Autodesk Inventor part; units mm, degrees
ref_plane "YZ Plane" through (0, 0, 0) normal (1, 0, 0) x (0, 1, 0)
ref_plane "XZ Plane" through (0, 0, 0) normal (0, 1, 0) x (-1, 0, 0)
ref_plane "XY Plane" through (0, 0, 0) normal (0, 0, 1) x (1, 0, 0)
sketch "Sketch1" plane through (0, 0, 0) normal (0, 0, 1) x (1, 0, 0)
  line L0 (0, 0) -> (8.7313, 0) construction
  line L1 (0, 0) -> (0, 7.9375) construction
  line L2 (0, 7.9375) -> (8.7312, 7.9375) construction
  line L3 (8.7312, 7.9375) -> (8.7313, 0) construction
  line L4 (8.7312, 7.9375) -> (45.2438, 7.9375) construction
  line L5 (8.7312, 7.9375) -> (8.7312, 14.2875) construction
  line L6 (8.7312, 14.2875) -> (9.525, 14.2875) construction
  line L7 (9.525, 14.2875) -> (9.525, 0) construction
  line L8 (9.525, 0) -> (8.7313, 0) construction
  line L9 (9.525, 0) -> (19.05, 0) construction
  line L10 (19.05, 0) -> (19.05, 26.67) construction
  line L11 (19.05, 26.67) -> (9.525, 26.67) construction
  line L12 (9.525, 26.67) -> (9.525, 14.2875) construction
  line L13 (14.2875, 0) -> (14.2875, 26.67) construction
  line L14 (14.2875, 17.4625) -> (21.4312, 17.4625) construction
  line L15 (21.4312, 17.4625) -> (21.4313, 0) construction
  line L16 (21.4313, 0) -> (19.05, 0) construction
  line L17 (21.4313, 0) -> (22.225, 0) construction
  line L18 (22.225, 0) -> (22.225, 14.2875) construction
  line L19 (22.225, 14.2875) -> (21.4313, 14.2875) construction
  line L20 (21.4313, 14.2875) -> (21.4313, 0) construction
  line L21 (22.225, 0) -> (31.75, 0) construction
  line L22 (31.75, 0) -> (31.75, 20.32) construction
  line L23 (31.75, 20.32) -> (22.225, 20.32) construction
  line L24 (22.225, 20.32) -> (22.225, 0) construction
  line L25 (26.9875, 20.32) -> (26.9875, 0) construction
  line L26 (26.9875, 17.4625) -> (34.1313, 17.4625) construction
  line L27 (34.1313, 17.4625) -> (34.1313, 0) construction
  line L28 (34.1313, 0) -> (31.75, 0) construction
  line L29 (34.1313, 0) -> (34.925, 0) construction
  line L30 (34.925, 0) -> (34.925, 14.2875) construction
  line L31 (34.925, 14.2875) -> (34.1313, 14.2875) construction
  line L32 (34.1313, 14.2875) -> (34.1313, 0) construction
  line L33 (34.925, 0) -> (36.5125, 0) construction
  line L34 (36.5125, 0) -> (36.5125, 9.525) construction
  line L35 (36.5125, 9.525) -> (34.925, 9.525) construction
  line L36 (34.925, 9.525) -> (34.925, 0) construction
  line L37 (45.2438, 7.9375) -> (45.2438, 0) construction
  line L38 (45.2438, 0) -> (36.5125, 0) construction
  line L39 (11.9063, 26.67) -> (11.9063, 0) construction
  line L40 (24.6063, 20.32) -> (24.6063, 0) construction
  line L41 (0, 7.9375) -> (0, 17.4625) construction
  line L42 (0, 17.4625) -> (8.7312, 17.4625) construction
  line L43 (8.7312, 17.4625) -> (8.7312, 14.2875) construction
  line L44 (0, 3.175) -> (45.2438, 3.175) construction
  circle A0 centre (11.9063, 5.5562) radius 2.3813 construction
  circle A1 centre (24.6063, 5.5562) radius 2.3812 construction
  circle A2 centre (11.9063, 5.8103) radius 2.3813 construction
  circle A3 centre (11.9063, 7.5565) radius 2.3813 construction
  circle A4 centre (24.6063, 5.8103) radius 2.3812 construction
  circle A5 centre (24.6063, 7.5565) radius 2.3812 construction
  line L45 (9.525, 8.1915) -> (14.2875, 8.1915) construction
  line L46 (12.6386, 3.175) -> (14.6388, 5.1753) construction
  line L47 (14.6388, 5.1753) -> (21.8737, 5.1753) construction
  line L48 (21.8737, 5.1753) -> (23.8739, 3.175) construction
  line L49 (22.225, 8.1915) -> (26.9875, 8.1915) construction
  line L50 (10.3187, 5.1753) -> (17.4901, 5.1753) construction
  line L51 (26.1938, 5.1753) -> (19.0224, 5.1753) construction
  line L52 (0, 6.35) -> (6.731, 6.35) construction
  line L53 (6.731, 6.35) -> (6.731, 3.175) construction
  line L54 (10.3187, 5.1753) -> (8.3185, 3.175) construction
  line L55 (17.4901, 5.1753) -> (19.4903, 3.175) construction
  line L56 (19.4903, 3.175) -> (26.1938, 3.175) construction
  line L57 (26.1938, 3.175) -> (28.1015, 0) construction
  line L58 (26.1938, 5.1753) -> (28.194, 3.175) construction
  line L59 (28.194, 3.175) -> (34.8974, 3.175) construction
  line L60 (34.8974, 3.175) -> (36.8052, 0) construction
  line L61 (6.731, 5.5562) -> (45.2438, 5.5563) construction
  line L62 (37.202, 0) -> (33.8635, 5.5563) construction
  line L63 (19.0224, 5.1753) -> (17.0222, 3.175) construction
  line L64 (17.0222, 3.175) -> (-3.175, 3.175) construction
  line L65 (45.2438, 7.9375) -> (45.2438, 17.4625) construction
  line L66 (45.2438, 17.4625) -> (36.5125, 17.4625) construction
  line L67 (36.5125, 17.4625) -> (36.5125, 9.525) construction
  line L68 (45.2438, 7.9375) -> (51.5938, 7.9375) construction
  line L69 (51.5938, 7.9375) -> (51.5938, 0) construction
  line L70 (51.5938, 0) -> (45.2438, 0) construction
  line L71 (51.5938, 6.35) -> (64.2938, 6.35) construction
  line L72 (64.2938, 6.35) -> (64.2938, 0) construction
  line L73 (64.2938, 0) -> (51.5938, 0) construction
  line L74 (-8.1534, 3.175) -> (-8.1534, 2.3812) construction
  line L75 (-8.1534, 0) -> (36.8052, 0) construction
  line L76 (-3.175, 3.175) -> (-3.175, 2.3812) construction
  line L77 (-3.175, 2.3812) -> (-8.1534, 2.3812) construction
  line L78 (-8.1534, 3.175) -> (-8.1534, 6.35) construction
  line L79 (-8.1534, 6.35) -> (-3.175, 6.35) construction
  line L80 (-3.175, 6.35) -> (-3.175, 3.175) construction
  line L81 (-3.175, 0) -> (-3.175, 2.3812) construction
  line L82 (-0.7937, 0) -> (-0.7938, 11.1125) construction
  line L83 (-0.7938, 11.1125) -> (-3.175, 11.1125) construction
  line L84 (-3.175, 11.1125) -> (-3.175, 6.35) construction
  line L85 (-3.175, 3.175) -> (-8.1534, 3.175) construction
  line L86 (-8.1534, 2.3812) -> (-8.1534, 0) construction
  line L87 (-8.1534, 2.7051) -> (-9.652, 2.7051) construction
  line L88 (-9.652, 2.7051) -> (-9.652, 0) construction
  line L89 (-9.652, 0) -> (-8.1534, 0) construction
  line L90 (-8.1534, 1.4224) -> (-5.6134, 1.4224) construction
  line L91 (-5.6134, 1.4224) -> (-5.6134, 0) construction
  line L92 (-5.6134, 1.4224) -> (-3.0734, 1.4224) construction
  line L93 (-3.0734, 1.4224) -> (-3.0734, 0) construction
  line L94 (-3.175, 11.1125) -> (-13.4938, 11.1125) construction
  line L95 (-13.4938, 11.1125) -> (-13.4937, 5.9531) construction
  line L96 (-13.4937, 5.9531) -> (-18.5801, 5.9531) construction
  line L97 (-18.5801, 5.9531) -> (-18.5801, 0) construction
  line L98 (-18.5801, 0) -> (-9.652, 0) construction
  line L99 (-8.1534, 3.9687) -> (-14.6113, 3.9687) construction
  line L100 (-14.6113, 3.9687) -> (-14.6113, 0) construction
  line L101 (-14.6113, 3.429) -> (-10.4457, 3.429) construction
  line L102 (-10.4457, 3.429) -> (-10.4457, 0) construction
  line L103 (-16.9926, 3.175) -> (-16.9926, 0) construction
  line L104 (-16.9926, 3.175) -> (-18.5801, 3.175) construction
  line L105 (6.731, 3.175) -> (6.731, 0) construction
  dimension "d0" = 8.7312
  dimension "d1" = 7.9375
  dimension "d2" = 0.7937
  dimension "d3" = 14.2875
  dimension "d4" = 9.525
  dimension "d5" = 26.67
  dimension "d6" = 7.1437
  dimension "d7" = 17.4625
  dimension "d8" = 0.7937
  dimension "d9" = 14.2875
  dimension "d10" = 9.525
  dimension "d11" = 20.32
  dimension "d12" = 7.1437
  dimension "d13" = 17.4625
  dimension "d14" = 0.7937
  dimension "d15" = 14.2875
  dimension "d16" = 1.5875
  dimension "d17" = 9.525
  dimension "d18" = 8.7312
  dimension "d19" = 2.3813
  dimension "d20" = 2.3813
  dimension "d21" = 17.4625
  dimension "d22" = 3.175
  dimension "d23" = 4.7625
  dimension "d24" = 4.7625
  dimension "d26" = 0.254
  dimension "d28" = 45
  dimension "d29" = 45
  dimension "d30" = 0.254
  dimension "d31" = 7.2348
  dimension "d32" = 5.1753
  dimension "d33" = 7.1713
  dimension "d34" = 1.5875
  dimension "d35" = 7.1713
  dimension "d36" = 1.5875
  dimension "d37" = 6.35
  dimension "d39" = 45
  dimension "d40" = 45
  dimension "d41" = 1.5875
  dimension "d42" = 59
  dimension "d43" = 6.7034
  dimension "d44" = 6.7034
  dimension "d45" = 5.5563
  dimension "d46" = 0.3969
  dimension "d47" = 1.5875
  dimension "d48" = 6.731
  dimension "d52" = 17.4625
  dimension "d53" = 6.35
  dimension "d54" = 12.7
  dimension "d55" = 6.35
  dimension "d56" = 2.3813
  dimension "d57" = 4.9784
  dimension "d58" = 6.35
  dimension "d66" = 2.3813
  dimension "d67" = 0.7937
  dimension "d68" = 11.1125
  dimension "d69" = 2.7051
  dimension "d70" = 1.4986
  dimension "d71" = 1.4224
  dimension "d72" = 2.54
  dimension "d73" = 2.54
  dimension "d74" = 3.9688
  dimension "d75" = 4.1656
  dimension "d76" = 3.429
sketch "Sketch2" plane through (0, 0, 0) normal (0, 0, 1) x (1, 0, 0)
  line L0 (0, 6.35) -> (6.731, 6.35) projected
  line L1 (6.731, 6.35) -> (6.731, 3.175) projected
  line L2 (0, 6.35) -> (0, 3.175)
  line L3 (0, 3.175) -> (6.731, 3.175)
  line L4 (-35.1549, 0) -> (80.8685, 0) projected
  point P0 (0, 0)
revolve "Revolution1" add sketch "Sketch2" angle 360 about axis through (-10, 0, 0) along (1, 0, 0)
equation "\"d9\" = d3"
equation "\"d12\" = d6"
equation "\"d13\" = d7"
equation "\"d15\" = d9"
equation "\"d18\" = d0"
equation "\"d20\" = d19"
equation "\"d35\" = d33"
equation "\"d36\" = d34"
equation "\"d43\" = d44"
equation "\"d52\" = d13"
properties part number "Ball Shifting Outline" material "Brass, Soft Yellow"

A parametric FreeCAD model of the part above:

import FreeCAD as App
import Part
import Sketcher
Q = App.Units.Quantity

doc = App.newDocument("Part")
body = doc.addObject("PartDesign::Body", "Body")

# Sketch on XY plane
sketch1 = body.newObject("Sketcher::SketchObject", "Sketch")
sketch1.AttachmentSupport = (doc.getObject("XY_Plane"), [""])
sketch1.MapMode = "FlatFace"
sketch1.addGeometry(Part.LineSegment(App.Vector(6.731, 6.35, 0), App.Vector(0, 6.35, 0)), False)
sketch1.addGeometry(Part.LineSegment(App.Vector(0, 6.35, 0), App.Vector(0, 3.175, 0)), False)
sketch1.addGeometry(Part.LineSegment(App.Vector(0, 3.175, 0), App.Vector(6.731, 3.175, 0)), False)
sketch1.addGeometry(Part.LineSegment(App.Vector(6.731, 3.175, 0), App.Vector(6.731, 6.35, 0)), False)
sketch1.addConstraint(Sketcher.Constraint("Coincident", 0, 2, 1, 1))
sketch1.addConstraint(Sketcher.Constraint("Coincident", 1, 2, 2, 1))
sketch1.addConstraint(Sketcher.Constraint("Coincident", 2, 2, 3, 1))
sketch1.addConstraint(Sketcher.Constraint("Coincident", 3, 2, 0, 1))
sketch1.addConstraint(Sketcher.Constraint("Horizontal", 0))
sketch1.addConstraint(Sketcher.Constraint("Vertical", 1))
sketch1.addConstraint(Sketcher.Constraint("Horizontal", 2))
sketch1.addConstraint(Sketcher.Constraint("Vertical", 3))
sketch1.addConstraint(Sketcher.Constraint("PointOnObject", 0, 2, -2))
sketch1.addConstraint(Sketcher.Constraint("DistanceX", 0, 2, 0, 1, Q("0.265 in")))
sketch1.addConstraint(Sketcher.Constraint("DistanceY", 1, 2, 1, 1, Q("0.125 in")))
sketch1.addConstraint(Sketcher.Constraint("DistanceY", -1, 1, 0, 2, Q("0.25 in")))
revolution = body.newObject("PartDesign::Revolution", "Revolution")
revolution.Profile = sketch1
revolution.ReferenceAxis = (sketch1, ["H_Axis"])
revolution.Angle = 360

doc.recompute()
